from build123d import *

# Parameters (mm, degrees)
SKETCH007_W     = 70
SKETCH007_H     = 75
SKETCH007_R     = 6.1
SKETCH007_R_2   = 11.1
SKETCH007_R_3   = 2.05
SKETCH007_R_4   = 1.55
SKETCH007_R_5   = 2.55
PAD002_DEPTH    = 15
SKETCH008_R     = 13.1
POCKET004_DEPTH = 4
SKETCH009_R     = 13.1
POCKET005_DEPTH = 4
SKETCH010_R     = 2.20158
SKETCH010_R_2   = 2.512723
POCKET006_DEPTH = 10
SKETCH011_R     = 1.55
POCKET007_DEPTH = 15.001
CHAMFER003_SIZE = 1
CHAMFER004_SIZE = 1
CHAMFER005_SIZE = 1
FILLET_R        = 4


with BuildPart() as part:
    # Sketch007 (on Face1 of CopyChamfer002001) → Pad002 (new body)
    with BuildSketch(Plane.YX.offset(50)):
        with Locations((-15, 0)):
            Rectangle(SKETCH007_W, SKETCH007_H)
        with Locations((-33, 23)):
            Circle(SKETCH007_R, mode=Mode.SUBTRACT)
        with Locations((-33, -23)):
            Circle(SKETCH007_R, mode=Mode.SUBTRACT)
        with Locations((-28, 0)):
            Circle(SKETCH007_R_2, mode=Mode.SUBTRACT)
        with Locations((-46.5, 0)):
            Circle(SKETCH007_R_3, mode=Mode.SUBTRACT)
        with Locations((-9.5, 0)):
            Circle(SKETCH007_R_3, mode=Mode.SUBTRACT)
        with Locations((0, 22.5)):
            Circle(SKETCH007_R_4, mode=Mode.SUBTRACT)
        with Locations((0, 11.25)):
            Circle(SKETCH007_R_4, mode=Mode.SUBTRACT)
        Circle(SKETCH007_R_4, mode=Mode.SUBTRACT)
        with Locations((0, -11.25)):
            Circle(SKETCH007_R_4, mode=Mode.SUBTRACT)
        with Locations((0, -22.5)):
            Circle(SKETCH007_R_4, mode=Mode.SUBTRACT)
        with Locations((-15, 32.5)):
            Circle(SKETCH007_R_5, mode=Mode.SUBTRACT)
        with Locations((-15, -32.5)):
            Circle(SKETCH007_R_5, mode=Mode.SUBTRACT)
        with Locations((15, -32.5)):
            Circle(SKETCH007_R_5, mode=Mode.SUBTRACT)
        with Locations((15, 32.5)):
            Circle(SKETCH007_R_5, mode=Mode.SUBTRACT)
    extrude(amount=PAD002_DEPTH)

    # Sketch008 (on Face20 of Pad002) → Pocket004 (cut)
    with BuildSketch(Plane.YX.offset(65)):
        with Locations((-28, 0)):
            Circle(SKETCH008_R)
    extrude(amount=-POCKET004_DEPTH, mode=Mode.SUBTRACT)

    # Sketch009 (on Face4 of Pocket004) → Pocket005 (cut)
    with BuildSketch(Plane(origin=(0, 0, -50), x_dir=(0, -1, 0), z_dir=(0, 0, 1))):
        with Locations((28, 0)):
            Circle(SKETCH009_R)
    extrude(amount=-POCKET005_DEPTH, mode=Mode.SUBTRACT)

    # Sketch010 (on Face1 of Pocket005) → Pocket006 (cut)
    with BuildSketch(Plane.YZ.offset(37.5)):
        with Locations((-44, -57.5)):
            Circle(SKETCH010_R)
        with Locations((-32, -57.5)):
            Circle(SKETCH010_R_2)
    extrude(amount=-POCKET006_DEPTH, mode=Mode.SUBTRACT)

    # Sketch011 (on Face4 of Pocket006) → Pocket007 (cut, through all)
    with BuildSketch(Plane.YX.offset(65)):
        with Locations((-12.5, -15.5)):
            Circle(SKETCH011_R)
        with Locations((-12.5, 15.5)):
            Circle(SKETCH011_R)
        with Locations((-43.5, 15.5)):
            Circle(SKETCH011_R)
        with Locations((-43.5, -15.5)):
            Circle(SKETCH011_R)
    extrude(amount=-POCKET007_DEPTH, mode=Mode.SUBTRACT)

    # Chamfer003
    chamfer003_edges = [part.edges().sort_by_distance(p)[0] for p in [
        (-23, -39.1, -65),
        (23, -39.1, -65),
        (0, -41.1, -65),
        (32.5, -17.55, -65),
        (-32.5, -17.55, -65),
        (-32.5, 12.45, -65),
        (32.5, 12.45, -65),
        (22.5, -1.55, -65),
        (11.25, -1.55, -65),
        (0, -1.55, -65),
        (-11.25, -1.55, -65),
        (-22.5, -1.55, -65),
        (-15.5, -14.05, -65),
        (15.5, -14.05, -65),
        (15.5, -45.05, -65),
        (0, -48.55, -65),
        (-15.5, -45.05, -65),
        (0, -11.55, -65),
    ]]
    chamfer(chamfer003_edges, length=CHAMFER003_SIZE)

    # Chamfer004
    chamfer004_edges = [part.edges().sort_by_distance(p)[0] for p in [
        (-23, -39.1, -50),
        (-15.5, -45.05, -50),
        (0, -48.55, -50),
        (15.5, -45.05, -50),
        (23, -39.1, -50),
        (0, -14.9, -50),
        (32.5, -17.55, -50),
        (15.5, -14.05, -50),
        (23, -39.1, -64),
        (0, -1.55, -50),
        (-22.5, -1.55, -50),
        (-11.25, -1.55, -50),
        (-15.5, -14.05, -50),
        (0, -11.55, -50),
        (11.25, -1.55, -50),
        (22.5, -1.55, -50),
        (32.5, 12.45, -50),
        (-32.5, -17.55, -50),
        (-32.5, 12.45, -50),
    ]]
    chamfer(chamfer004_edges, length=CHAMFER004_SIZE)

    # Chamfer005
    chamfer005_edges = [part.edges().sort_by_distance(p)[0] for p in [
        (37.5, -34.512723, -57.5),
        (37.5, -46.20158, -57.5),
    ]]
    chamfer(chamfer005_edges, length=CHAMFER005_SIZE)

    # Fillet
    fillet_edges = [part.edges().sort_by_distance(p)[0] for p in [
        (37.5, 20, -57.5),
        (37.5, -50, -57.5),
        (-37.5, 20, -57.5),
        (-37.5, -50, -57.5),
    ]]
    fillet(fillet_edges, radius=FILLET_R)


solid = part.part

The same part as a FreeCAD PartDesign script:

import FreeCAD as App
import Part
import Sketcher

V = App.Vector
Q = App.Units.Quantity


def edges_at(feature, points):
    """Names of the edges that pass closest to the given points."""
    edges = feature.Shape.Edges
    near = lambda p: min(range(len(edges)), key=lambda i: edges[i].distToShape(Part.Vertex(*p))[0])
    return sorted({f"Edge{near(p) + 1}" for p in points})

doc = App.newDocument("Part")
body = doc.addObject("PartDesign::Body", "Body")

sketch1 = body.newObject("Sketcher::SketchObject", "Sketch")
sketch1.AttachmentSupport = (doc.getObject("XY_Plane"), [""])
sketch1.MapMode = "FlatFace"
sketch1.AttachmentOffset = App.Placement(V(0, 0, -50), App.Rotation())
sketch1.addGeometry([
    Part.LineSegment(V(37.5, -50, 0), V(-37.5, -50, 0)),
    Part.LineSegment(V(-37.5, -50, 0), V(-37.5, 20, 0)),
    Part.LineSegment(V(-37.5, 20, 0), V(37.5, 20, 0)),
    Part.LineSegment(V(37.5, 20, 0), V(37.5, -50, 0)),
    Part.Circle(V(-23, -33, 0), V(0, 0, 1), 6.1),
    Part.Circle(V(-32.5, -15, 0), V(0, 0, 1), 2.5),
    Part.Circle(V(-22.5, 0, 0), V(0, 0, 1), 1.6),
    Part.Circle(V(-32.5, 15, 0), V(0, 0, 1), 2.5),
    Part.Circle(V(-11.2, 0, 0), V(0, 0, 1), 1.6),
    Part.Circle(V(0, -46.5, 0), V(0, 0, 1), 2),
    Part.Circle(V(0, -28, 0), V(0, 0, 1), 11.1),
    Part.Circle(V(23, -33, 0), V(0, 0, 1), 6.1),
    Part.Circle(V(0, -9.5, 0), V(0, 0, 1), 2),
    Part.Circle(V(0, 0, 0), V(0, 0, 1), 1.6),
    Part.Circle(V(11.2, 0, 0), V(0, 0, 1), 1.6),
    Part.Circle(V(22.5, 0, 0), V(0, 0, 1), 1.6),
    Part.Circle(V(32.5, -15, 0), V(0, 0, 1), 2.5),
    Part.Circle(V(32.5, 15, 0), V(0, 0, 1), 2.5),
], False)
sketch1.addConstraint([
    Sketcher.Constraint("Coincident", 0, 2, 1, 1),
    Sketcher.Constraint("Coincident", 1, 2, 2, 1),
    Sketcher.Constraint("Coincident", 2, 2, 3, 1),
    Sketcher.Constraint("Coincident", 3, 2, 0, 1),
    Sketcher.Constraint("Horizontal", 0),
    Sketcher.Constraint("Vertical", 1),
    Sketcher.Constraint("Horizontal", 2),
    Sketcher.Constraint("Vertical", 3),
    Sketcher.Constraint("Coincident", 13, 3, -1, 1),
    Sketcher.Constraint("Equal", 5, 7),
    Sketcher.Constraint("Equal", 6, 8),
    Sketcher.Constraint("Equal", 4, 11),
    Sketcher.Constraint("Equal", 9, 12),
    Sketcher.Constraint("Equal", 8, 13),
    Sketcher.Constraint("Equal", 13, 14),
    Sketcher.Constraint("Equal", 14, 15),
    Sketcher.Constraint("Equal", 7, 16),
    Sketcher.Constraint("Equal", 16, 17),
    Sketcher.Constraint("Symmetric", 8, 3, 14, 3, -1, 1),
    Sketcher.Constraint("Symmetric", 6, 3, 15, 3, -1, 1),
    Sketcher.Constraint("Symmetric", 7, 3, 16, 3, -1, 1),
    Sketcher.Constraint("Symmetric", 5, 3, 17, 3, -1, 1),
    Sketcher.Constraint("Symmetric", 4, 3, 11, 3, -2),
    Sketcher.Constraint("Symmetric", 5, 3, 16, 3, -2),
    Sketcher.Constraint("PointOnObject", 6, 3, -1),
    Sketcher.Constraint("PointOnObject", 8, 3, -1),
    Sketcher.Constraint("PointOnObject", 9, 3, -2),
    Sketcher.Constraint("PointOnObject", 10, 3, -2),
    Sketcher.Constraint("PointOnObject", 12, 3, -2),
    Sketcher.Constraint("Diameter", 4, Q("12.2 mm")),
    Sketcher.Constraint("Diameter", 5, Q("5.1 mm")),
    Sketcher.Constraint("Diameter", 6, Q("3.1 mm")),
    Sketcher.Constraint("Diameter", 9, Q("4.1 mm")),
    Sketcher.Constraint("Diameter", 10, Q("22.2 mm")),
    Sketcher.Constraint("DistanceX", 0, 2, 0, 1, Q("75 mm")),
    Sketcher.Constraint("DistanceY", 1, 1, 1, 2, Q("70 mm")),
    Sketcher.Constraint("DistanceX", 4, 3, -1, 1, Q("23 mm")),
    Sketcher.Constraint("DistanceY", 4, 3, -1, 1, Q("33 mm")),
    Sketcher.Constraint("DistanceY", 5, 3, -1, 1, Q("15 mm")),
    Sketcher.Constraint("DistanceY", 10, 3, -1, 1, Q("28 mm")),
    Sketcher.Constraint("DistanceY", 0, 2, -1, 1, Q("50 mm")),
    Sketcher.Constraint("DistanceX", 5, 3, 6, 3, Q("10 mm")),
    Sketcher.Constraint("DistanceX", 0, 2, 5, 3, Q("5 mm")),
    Sketcher.Constraint("DistanceX", 17, 3, 2, 2, Q("5 mm")),
    Sketcher.Constraint("DistanceY", 9, 3, -1, 1, Q("46.5 mm")),
    Sketcher.Constraint("DistanceY", 12, 3, -1, 1, Q("9.5 mm")),
    Sketcher.Constraint("DistanceX", 8, 3, 14, 3, Q("22.5 mm")),
])
pad1 = body.newObject("PartDesign::Pad", "Pad")
pad1.Profile = sketch1
pad1.Length = 15
pad1.Reversed = True

sketch2 = body.newObject("Sketcher::SketchObject", "Sketch001")
sketch2.AttachmentSupport = (doc.getObject("XY_Plane"), [""])
sketch2.MapMode = "FlatFace"
sketch2.AttachmentOffset = App.Placement(V(0, 0, -65), App.Rotation())
sketch2.addGeometry(Part.Circle(V(0, -28, 0), V(0, 0, 1), 13), False)
sketch2.addConstraint([
    Sketcher.Constraint("PointOnObject", 0, 3, -2),
    Sketcher.Constraint("Diameter", 0, Q("26.2 mm")),
    Sketcher.Constraint("DistanceY", 0, 3, -1, 1, Q("28 mm")),
])
pocket1 = body.newObject("PartDesign::Pocket", "Pocket")
pocket1.Profile = sketch2
pocket1.Length = 4
pocket1.Reversed = True

sketch3 = body.newObject("Sketcher::SketchObject", "Sketch002")
sketch3.AttachmentSupport = (doc.getObject("XY_Plane"), [""])
sketch3.MapMode = "FlatFace"
sketch3.AttachmentOffset = App.Placement(V(0, 0, -50), App.Rotation())
sketch3.addGeometry(Part.Circle(V(0, -28, 0), V(0, 0, 1), 13), False)
sketch3.addConstraint([
    Sketcher.Constraint("PointOnObject", 0, 3, -2),
    Sketcher.Constraint("Diameter", 0, Q("26.2 mm")),
    Sketcher.Constraint("DistanceY", 0, 3, -1, 1, Q("28 mm")),
])
pocket2 = body.newObject("PartDesign::Pocket", "Pocket001")
pocket2.Profile = sketch3
pocket2.Length = 4

sketch4 = body.newObject("Sketcher::SketchObject", "Sketch003")
sketch4.AttachmentSupport = (doc.getObject("YZ_Plane"), [""])
sketch4.MapMode = "FlatFace"
sketch4.AttachmentOffset = App.Placement(V(0, 0, 37.5), App.Rotation())
sketch4.addGeometry([
    Part.Circle(V(-44, -57.5, 0), V(0, 0, 1), 2.2),
    Part.Circle(V(-32, -57.5, 0), V(0, 0, 1), 2.5),
], False)
sketch4.addConstraint([
    Sketcher.Constraint("Horizontal", 0, 3, 1, 3),
    Sketcher.Constraint("DistanceX", 0, 3, -1, 1, Q("44 mm")),
    Sketcher.Constraint("DistanceX", 1, 3, -1, 1, Q("32 mm")),
    Sketcher.Constraint("DistanceY", 0, 3, -1, 1, Q("57.5 mm")),
    Sketcher.Constraint("Diameter", 0, Q("4.40316 mm")),
    Sketcher.Constraint("Diameter", 1, Q("5.025446 mm")),
])
pocket3 = body.newObject("PartDesign::Pocket", "Pocket002")
pocket3.Profile = sketch4
pocket3.Length = 10

sketch5 = body.newObject("Sketcher::SketchObject", "Sketch004")
sketch5.AttachmentSupport = (doc.getObject("XY_Plane"), [""])
sketch5.MapMode = "FlatFace"
sketch5.AttachmentOffset = App.Placement(V(0, 0, -65), App.Rotation())
sketch5.addGeometry([
    Part.Circle(V(-15.5, -12.5, 0), V(0, 0, 1), 1.6),
    Part.Circle(V(15.5, -12.5, 0), V(0, 0, 1), 1.6),
    Part.Circle(V(15.5, -43.5, 0), V(0, 0, 1), 1.6),
    Part.Circle(V(-15.5, -43.5, 0), V(0, 0, 1), 1.6),
], False)
sketch5.addConstraint([
    Sketcher.Constraint("Equal", 0, 1),
    Sketcher.Constraint("Equal", 1, 2),
    Sketcher.Constraint("Equal", 2, 3),
    Sketcher.Constraint("Symmetric", 0, 3, 1, 3, -2),
    Sketcher.Constraint("Symmetric", 2, 3, 3, 3, -2),
    Sketcher.Constraint("Vertical", 1, 3, 2, 3),
    Sketcher.Constraint("Diameter", 0, Q("3.1 mm")),
    Sketcher.Constraint("DistanceX", 0, 3, 1, 3, Q("31 mm")),
    Sketcher.Constraint("DistanceY", 2, 3, 1, 3, Q("31 mm")),
    Sketcher.Constraint("DistanceY", 0, 3, -1, 1, Q("12.5 mm")),
])
pocket4 = body.newObject("PartDesign::Pocket", "Pocket003")
pocket4.Profile = sketch5
pocket4.Type = "ThroughAll"
pocket4.Reversed = True
doc.recompute()

chamfer = body.newObject("PartDesign::Chamfer", "Chamfer")
chamfer.Base = (pocket4, edges_at(pocket4, [
    (-23, -39.1, -65),
    (23, -39.1, -65),
    (0, -41.1, -65),
    (32.5, -17.55, -65),
    (-32.5, -17.55, -65),
    (-32.5, 12.45, -65),
    (32.5, 12.45, -65),
    (22.5, -1.55, -65),
    (11.25, -1.55, -65),
    (0, -1.55, -65),
    (-11.25, -1.55, -65),
    (-22.5, -1.55, -65),
    (-15.5, -14.05, -65),
    (15.5, -14.05, -65),
    (15.5, -45.05, -65),
    (0, -48.55, -65),
    (-15.5, -45.05, -65),
    (0, -11.55, -65),
]))
chamfer.Size = 1
doc.recompute()

chamfer2 = body.newObject("PartDesign::Chamfer", "Chamfer001")
chamfer2.Base = (chamfer, edges_at(chamfer, [
    (-23, -39.1, -50),
    (-15.5, -45.05, -50),
    (0, -48.55, -50),
    (15.5, -45.05, -50),
    (23, -39.1, -50),
    (0, -14.9, -50),
    (32.5, -17.55, -50),
    (15.5, -14.05, -50),
    (23, -39.1, -64),
    (0, -1.55, -50),
    (-22.5, -1.55, -50),
    (-11.25, -1.55, -50),
    (-15.5, -14.05, -50),
    (0, -11.55, -50),
    (11.25, -1.55, -50),
    (22.5, -1.55, -50),
    (32.5, 12.45, -50),
    (-32.5, -17.55, -50),
    (-32.5, 12.45, -50),
]))
chamfer2.Size = 1
doc.recompute()

chamfer3 = body.newObject("PartDesign::Chamfer", "Chamfer002")
chamfer3.Base = (chamfer2, edges_at(chamfer2, [(37.5, -34.513, -57.5), (37.5, -46.202, -57.5)]))
chamfer3.Size = 1
doc.recompute()

fillet = body.newObject("PartDesign::Fillet", "Fillet")
fillet.Base = (chamfer3, edges_at(chamfer3, [
    (37.5, 20, -57.5),
    (37.5, -50, -57.5),
    (-37.5, 20, -57.5),
    (-37.5, -50, -57.5),
]))
fillet.Radius = 4

doc.recompute()
